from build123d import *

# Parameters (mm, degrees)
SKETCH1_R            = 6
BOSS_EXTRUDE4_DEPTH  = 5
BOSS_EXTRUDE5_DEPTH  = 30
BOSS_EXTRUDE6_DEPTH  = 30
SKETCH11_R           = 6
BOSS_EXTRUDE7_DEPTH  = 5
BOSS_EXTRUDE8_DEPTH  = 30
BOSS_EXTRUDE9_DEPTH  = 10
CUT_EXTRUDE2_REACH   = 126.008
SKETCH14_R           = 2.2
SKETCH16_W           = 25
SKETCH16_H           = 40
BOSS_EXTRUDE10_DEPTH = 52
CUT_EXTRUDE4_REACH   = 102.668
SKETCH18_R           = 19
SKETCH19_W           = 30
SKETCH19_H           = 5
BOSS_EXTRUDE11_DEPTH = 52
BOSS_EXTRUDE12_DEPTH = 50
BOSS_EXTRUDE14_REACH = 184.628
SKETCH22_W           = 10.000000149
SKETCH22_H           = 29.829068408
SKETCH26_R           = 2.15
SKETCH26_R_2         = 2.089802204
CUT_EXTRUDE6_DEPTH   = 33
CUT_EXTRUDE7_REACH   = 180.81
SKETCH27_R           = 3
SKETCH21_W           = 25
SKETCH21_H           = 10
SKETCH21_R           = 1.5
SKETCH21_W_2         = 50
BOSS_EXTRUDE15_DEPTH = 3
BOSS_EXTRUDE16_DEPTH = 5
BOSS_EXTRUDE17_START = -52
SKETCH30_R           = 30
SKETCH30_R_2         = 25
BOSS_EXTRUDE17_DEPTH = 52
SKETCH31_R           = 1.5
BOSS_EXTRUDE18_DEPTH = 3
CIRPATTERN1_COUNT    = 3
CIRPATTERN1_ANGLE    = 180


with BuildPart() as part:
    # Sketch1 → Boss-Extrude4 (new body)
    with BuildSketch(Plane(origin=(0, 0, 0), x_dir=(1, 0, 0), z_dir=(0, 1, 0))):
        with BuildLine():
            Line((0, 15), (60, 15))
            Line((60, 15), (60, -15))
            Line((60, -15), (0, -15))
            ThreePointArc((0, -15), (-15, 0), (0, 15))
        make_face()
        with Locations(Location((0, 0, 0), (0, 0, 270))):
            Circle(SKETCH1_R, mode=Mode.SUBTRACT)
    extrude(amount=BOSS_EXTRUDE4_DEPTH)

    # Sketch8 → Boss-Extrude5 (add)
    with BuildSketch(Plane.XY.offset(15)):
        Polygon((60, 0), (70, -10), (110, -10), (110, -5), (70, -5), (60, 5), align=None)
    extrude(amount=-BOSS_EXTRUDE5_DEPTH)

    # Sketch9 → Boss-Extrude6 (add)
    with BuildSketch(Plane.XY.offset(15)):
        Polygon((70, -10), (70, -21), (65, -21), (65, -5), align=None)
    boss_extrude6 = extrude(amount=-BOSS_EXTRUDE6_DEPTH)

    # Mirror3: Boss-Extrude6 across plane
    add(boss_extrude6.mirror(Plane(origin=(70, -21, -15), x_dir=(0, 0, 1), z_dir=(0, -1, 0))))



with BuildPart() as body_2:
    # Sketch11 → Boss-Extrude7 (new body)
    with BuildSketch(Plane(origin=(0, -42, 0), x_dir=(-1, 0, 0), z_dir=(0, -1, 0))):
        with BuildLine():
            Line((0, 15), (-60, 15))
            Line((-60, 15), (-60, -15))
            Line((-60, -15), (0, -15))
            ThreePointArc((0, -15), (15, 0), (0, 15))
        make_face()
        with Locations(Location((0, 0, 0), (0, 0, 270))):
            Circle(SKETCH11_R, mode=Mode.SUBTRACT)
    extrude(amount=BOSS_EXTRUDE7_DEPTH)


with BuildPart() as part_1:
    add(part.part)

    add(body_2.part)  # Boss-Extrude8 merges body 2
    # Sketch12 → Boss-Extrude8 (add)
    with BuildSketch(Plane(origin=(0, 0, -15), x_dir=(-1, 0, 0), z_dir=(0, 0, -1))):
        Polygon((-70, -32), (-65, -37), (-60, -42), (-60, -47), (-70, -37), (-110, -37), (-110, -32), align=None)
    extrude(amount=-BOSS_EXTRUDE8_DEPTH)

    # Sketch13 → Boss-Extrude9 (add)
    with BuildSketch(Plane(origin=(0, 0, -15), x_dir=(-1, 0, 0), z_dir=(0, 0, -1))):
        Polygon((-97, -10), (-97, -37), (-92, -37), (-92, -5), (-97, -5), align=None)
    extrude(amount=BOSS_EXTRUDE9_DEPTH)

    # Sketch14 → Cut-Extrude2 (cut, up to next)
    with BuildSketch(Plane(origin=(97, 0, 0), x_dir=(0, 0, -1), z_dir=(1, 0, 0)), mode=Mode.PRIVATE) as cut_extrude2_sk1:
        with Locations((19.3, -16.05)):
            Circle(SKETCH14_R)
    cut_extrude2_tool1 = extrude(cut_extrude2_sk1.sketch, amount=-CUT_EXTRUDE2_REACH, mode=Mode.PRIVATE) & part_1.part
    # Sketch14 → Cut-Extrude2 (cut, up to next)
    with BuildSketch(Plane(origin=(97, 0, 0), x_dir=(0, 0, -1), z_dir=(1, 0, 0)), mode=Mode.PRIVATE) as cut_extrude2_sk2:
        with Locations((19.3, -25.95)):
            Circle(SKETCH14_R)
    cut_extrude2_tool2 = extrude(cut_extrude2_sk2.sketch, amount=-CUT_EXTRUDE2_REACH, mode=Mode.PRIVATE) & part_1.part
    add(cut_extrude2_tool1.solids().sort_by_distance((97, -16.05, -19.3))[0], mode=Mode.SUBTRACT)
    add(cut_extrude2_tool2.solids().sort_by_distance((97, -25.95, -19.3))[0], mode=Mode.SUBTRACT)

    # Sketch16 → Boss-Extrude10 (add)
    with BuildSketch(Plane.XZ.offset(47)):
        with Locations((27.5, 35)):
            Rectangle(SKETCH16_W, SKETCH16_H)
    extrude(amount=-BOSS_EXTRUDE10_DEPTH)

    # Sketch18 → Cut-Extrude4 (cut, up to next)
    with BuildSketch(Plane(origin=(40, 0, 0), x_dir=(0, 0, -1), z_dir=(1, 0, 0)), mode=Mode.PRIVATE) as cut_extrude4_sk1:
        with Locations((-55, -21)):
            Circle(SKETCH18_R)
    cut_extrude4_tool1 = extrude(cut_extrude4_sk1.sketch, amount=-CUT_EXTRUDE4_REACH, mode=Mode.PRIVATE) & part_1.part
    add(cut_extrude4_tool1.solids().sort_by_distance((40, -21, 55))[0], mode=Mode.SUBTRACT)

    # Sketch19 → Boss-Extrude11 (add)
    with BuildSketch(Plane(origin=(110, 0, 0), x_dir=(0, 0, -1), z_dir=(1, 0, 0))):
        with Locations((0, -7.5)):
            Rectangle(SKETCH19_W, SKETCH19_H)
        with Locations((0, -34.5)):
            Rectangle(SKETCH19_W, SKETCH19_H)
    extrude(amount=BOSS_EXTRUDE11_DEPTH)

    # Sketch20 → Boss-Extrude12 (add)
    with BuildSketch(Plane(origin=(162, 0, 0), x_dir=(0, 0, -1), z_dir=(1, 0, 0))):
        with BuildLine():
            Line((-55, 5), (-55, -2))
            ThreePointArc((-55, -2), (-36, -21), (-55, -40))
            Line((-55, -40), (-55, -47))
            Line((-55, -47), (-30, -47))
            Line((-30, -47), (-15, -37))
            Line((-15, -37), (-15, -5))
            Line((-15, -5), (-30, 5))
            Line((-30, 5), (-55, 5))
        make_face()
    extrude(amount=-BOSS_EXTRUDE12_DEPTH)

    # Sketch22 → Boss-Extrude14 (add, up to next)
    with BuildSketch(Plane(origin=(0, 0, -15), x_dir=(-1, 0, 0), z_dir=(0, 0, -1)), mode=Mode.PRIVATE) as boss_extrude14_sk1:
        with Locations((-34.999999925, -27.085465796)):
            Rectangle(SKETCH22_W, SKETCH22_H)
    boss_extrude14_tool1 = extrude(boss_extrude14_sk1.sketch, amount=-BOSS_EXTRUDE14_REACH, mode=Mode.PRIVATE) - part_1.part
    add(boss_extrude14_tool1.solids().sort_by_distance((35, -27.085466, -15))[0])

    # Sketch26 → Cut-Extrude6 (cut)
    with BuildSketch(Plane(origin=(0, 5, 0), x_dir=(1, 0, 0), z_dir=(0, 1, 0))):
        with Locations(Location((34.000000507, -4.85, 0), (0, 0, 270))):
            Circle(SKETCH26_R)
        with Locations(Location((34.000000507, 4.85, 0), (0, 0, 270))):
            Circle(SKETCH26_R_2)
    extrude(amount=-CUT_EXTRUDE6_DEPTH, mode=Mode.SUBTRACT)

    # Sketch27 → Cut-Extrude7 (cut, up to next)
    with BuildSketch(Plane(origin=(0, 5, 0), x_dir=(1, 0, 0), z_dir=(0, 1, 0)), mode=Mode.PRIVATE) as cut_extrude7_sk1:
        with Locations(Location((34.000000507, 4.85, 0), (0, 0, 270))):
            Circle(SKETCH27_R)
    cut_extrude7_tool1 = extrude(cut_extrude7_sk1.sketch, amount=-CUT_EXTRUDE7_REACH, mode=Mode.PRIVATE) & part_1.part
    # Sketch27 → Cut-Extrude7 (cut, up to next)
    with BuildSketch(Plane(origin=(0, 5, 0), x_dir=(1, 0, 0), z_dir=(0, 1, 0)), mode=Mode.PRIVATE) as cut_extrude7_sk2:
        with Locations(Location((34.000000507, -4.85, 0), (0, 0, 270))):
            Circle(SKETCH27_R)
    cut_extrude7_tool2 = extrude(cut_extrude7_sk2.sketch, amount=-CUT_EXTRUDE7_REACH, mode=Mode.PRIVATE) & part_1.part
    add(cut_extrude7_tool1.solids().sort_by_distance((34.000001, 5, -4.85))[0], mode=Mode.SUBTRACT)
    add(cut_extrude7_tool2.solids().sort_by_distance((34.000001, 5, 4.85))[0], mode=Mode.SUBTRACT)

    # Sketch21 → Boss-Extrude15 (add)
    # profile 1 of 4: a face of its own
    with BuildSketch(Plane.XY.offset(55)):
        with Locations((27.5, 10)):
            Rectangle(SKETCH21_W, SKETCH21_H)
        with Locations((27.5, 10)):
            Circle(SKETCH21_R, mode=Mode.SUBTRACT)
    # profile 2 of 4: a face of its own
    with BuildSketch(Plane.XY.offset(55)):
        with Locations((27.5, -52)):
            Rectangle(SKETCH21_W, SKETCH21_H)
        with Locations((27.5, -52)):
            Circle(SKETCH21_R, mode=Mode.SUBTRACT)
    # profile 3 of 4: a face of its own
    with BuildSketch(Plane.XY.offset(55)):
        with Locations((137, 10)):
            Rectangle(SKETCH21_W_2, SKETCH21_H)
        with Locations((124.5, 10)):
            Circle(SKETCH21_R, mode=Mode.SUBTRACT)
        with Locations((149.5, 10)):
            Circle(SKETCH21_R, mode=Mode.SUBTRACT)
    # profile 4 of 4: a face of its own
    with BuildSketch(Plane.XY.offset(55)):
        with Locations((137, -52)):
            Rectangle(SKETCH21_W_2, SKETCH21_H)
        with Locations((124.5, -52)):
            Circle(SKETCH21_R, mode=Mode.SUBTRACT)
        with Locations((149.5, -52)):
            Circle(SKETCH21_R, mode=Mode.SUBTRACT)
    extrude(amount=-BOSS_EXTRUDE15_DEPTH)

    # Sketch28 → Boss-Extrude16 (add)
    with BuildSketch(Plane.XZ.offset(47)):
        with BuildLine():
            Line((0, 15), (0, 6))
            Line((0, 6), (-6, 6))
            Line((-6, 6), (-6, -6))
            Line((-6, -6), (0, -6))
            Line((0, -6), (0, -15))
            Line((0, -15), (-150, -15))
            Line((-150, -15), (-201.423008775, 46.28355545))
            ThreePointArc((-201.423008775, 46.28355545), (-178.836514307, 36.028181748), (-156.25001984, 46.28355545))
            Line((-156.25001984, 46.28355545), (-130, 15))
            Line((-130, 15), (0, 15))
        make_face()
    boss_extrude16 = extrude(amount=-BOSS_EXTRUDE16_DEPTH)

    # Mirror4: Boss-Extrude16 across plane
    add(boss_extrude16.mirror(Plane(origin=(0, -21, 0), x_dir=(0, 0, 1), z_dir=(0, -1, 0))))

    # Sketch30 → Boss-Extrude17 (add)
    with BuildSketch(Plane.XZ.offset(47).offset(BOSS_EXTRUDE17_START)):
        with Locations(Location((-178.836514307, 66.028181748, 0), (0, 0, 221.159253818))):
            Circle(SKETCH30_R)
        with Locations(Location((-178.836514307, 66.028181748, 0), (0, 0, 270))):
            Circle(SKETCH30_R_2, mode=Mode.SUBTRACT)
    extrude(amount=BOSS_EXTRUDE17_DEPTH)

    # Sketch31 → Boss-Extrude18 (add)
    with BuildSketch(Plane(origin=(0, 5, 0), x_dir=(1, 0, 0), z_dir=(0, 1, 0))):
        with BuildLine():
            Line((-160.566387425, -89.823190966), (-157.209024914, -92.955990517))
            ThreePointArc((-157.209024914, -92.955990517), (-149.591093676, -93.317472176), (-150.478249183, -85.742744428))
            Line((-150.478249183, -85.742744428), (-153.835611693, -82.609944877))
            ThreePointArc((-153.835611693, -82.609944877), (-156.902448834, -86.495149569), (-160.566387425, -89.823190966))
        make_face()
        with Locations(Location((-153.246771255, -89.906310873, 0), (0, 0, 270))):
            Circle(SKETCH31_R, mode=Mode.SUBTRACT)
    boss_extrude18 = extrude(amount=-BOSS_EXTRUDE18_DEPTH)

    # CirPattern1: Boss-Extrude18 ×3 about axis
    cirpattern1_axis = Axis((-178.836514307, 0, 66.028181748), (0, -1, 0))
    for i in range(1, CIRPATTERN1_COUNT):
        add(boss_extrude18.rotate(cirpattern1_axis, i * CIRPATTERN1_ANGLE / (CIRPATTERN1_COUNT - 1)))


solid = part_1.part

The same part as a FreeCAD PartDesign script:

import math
import FreeCAD as App
import Part
import Sketcher
Q = App.Units.Quantity

doc = App.newDocument("Part")
params = doc.addObject("Spreadsheet::Sheet", "Params")
for row, (alias, value) in enumerate([
    ("sketch1_diameter", "12 mm"),
    ("sketch1_radius", "15 mm"),
    ("sketch1_width", "60 mm"),
    ("pad1_length", "5 mm"),
    ("sketch2_width", "40 mm"),
    ("sketch2_height", "5 mm"),
    ("pad2_length", "30 mm"),
    ("sketch3_width", "5 mm"),
    ("sketch3_height", "11 mm"),
    ("sketch3_height2", "16 mm"),
    ("pad3_length", "30 mm"),
    ("sketch4_diameter", "12 mm"),
    ("sketch4_radius", "15 mm"),
    ("sketch4_width", "60 mm"),
    ("pad4_length", "5 mm"),
    ("sketch5_width", "40 mm"),
    ("sketch5_height", "5 mm"),
    ("pad5_length", "30 mm"),
    ("sketch6_width", "5 mm"),
    ("sketch6_height", "32 mm"),
    ("pad6_length", "10 mm"),
    ("sketch7_diameter", "4.4 mm"),
    ("sketch8_diameter", "4.4 mm"),
    ("sketch9_width", "25 mm"),
    ("sketch9_height", "40 mm"),
    ("pad7_length", "52 mm"),
    ("sketch10_diameter", "38 mm"),
    ("sketch11_width", "5 mm"),
    ("sketch11_height", "30 mm"),
    ("pad8_length", "52 mm"),
    ("sketch12_radius", "19 mm"),
    ("sketch12_width", "7 mm"),
    ("sketch12_width2", "32 mm"),
    ("sketch12_height", "25 mm"),
    ("pad9_length", "50 mm"),
    ("sketch13_width", "10 mm"),
    ("sketch14_diameter", "4.3 mm"),
    ("pocket4_length", "33 mm"),
    ("sketch15_diameter", "6 mm"),
    ("pocket5_length", "5 mm"),
    ("sketch16_diameter", "6 mm"),
    ("pocket6_length", "5 mm"),
    ("sketch17_diameter", "3 mm"),
    ("sketch17_width", "25 mm"),
    ("sketch17_width2", "50 mm"),
    ("sketch17_height", "10 mm"),
    ("pad11_length", "3 mm"),
    ("sketch18_radius", "30 mm"),
    ("sketch18_width", "130 mm"),
    ("sketch18_width2", "150 mm"),
    ("sketch18_width3", "6 mm"),
    ("sketch18_height", "9 mm"),
    ("pad12_length", "5 mm"),
    ("sketch19_diameter", "60 mm"),
    ("sketch19_diameter2", "50 mm"),
    ("pad13_length", "52 mm"),
    ("sketch20_diameter", "3 mm"),
    ("sketch20_radius", "5 mm"),
    ("sketch20_radius2", "30 mm"),
    ("pad14_length", "3 mm"),
], start=1):
    params.set(f"A{row}", alias)
    params.set(f"B{row}", "=" + value)
    params.setAlias(f"B{row}", alias)

body = doc.addObject("PartDesign::Body", "Body")

# Sketch on XZ plane
sketch1 = doc.addObject("Sketcher::SketchObject", "Sketch")
body.addObject(sketch1)
sketch1.AttachmentSupport = (doc.XZ_Plane, [""])
sketch1.MapMode = "FlatFace"
sketch1.addGeometry([
    Part.LineSegment(App.Vector(60, -15, 0), App.Vector(0, -15, 0)),  # 0
    Part.ArcOfCircle(Part.Circle(App.Vector(0, 0, 0), App.Vector(0, 0, 1), 15), math.radians(90), math.radians(270)),  # 1
    Part.LineSegment(App.Vector(0, 15, 0), App.Vector(60, 15, 0)),  # 2
    Part.LineSegment(App.Vector(60, 15, 0), App.Vector(60, -15, 0)),  # 3
    Part.Circle(App.Vector(0, 0, 0), App.Vector(0, 0, 1), 6),  # 4
], False)
sketch1.addConstraint([
    Sketcher.Constraint("Tangent", 0, 2, 1, 2),
    Sketcher.Constraint("Tangent", 1, 1, 2, 1),
    Sketcher.Constraint("Coincident", 2, 2, 3, 1),
    Sketcher.Constraint("Coincident", 3, 2, 0, 1),
    Sketcher.Constraint("Horizontal", 0),
    Sketcher.Constraint("Horizontal", 2),
    Sketcher.Constraint("Vertical", 3),
    Sketcher.Constraint("Coincident", 1, 3, -1, 1),
    Sketcher.Constraint("Coincident", 4, 3, -1, 1),
    Sketcher.Constraint("Diameter", 4, Q("12 mm")),
    Sketcher.Constraint("Radius", 1, Q("15 mm")),
    Sketcher.Constraint("DistanceX", 0, 2, 0, 1, Q("60 mm")),
])
sketch1.setExpression("Constraints[9]", "Params.sketch1_diameter")
sketch1.setExpression("Constraints[10]", "Params.sketch1_radius")
sketch1.setExpression("Constraints[11]", "Params.sketch1_width")
pad1 = doc.addObject("PartDesign::Pad", "Pad")
body.addObject(pad1)
pad1.Profile = sketch1
pad1.setExpression("Length", "Params.pad1_length")
pad1.Reversed = True

# Sketch on XY plane
sketch2 = doc.addObject("Sketcher::SketchObject", "Sketch001")
body.addObject(sketch2)
sketch2.AttachmentSupport = (doc.XY_Plane, [""])
sketch2.MapMode = "FlatFace"
sketch2.AttachmentOffset = App.Placement(App.Vector(0, 0, 15), App.Rotation())
sketch2.addGeometry([
    Part.LineSegment(App.Vector(60, 0, 0), App.Vector(70, -10, 0)),  # 0
    Part.LineSegment(App.Vector(70, -10, 0), App.Vector(110, -10, 0)),  # 1
    Part.LineSegment(App.Vector(110, -10, 0), App.Vector(110, -5, 0)),  # 2
    Part.LineSegment(App.Vector(110, -5, 0), App.Vector(70, -5, 0)),  # 3
    Part.LineSegment(App.Vector(70, -5, 0), App.Vector(60, 5, 0)),  # 4
    Part.LineSegment(App.Vector(60, 5, 0), App.Vector(60, 0, 0)),  # 5
], False)
sketch2.addConstraint([
    Sketcher.Constraint("Coincident", 0, 2, 1, 1),
    Sketcher.Constraint("Coincident", 1, 2, 2, 1),
    Sketcher.Constraint("Coincident", 2, 2, 3, 1),
    Sketcher.Constraint("Coincident", 3, 2, 4, 1),
    Sketcher.Constraint("Coincident", 4, 2, 5, 1),
    Sketcher.Constraint("Coincident", 5, 2, 0, 1),
    Sketcher.Constraint("Horizontal", 1),
    Sketcher.Constraint("Vertical", 2),
    Sketcher.Constraint("Horizontal", 3),
    Sketcher.Constraint("Vertical", 5),
    Sketcher.Constraint("PointOnObject", 5, 2, -1),
    Sketcher.Constraint("Parallel", 0, 4),
    Sketcher.Constraint("Vertical", 0, 2, 3, 2),
    Sketcher.Constraint("DistanceX", 1, 1, 1, 2, Q("40 mm")),
    Sketcher.Constraint("DistanceY", 2, 1, 2, 2, Q("5 mm")),
    Sketcher.Constraint("Angle", 0, Q("-45 deg")),
    Sketcher.Constraint("DistanceX", -1, 1, 0, 2, Q("70 mm")),
    Sketcher.Constraint("DistanceY", 0, 2, -1, 1, Q("10 mm")),
])
sketch2.setExpression("Constraints[13]", "Params.sketch2_width")
sketch2.setExpression("Constraints[14]", "Params.sketch2_height")
pad2 = doc.addObject("PartDesign::Pad", "Pad001")
body.addObject(pad2)
pad2.Profile = sketch2
pad2.setExpression("Length", "Params.pad2_length")
pad2.Reversed = True

# Sketch on XY plane
sketch3 = doc.addObject("Sketcher::SketchObject", "Sketch002")
body.addObject(sketch3)
sketch3.AttachmentSupport = (doc.XY_Plane, [""])
sketch3.MapMode = "FlatFace"
sketch3.AttachmentOffset = App.Placement(App.Vector(0, 0, 15), App.Rotation())
sketch3.addGeometry([
    Part.LineSegment(App.Vector(70, -21, 0), App.Vector(70, -10, 0)),
    Part.LineSegment(App.Vector(70, -10, 0), App.Vector(65, -5, 0)),
    Part.LineSegment(App.Vector(65, -5, 0), App.Vector(65, -21, 0)),
    Part.LineSegment(App.Vector(65, -21, 0), App.Vector(70, -21, 0)),
], False)
sketch3.addConstraint([
    Sketcher.Constraint("Coincident", 0, 2, 1, 1),
    Sketcher.Constraint("Coincident", 1, 2, 2, 1),
    Sketcher.Constraint("Coincident", 2, 2, 3, 1),
    Sketcher.Constraint("Coincident", 3, 2, 0, 1),
    Sketcher.Constraint("Vertical", 0),
    Sketcher.Constraint("Vertical", 2),
    Sketcher.Constraint("Horizontal", 3),
    Sketcher.Constraint("DistanceX", 3, 1, 3, 2, Q("5 mm")),
    Sketcher.Constraint("DistanceY", 0, 1, 0, 2, Q("11 mm")),
    Sketcher.Constraint("DistanceY", 2, 2, 2, 1, Q("16 mm")),
    Sketcher.Constraint("DistanceX", -1, 1, 0, 2, Q("70 mm")),
    Sketcher.Constraint("DistanceY", 0, 2, -1, 1, Q("10 mm")),
])
sketch3.setExpression("Constraints[7]", "Params.sketch3_width")
sketch3.setExpression("Constraints[8]", "Params.sketch3_height")
sketch3.setExpression("Constraints[9]", "Params.sketch3_height2")
pad3 = doc.addObject("PartDesign::Pad", "Pad002")
body.addObject(pad3)
pad3.Profile = sketch3
pad3.setExpression("Length", "Params.pad3_length")
pad3.Reversed = True
doc.recompute()

datumplane = doc.addObject("PartDesign::Plane", "DatumPlane")
body.addObject(datumplane)
datumplane.AttachmentSupport = (doc.XZ_Plane, [""])
datumplane.MapMode = "FlatFace"
datumplane.AttachmentOffset = App.Placement(App.Vector(0, 0, 21), App.Rotation())
mirrored = doc.addObject("PartDesign::Mirrored", "Mirrored")
body.addObject(mirrored)
mirrored.Originals = [pad3]
mirrored.MirrorPlane = (datumplane, [""])
body.Tip = mirrored
body2 = doc.addObject("PartDesign::Body", "Body001")

# Sketch on XZ plane
sketch4 = doc.addObject("Sketcher::SketchObject", "Sketch003")
body2.addObject(sketch4)
sketch4.AttachmentSupport = (doc.getObject("XZ_Plane001"), [""])
sketch4.MapMode = "FlatFace"
sketch4.AttachmentOffset = App.Placement(App.Vector(0, 0, 42), App.Rotation())
sketch4.addGeometry([
    Part.LineSegment(App.Vector(0, -15, 0), App.Vector(60, -15, 0)),  # 0
    Part.LineSegment(App.Vector(60, -15, 0), App.Vector(60, 15, 0)),  # 1
    Part.LineSegment(App.Vector(60, 15, 0), App.Vector(0, 15, 0)),  # 2
    Part.ArcOfCircle(Part.Circle(App.Vector(0, 0, 0), App.Vector(0, 0, 1), 15), math.radians(90), math.radians(270)),  # 3
    Part.Circle(App.Vector(0, 0, 0), App.Vector(0, 0, 1), 6),  # 4
], False)
sketch4.addConstraint([
    Sketcher.Constraint("Coincident", 0, 2, 1, 1),
    Sketcher.Constraint("Coincident", 1, 2, 2, 1),
    Sketcher.Constraint("Tangent", 2, 2, 3, 1),
    Sketcher.Constraint("Tangent", 3, 2, 0, 1),
    Sketcher.Constraint("Horizontal", 0),
    Sketcher.Constraint("Vertical", 1),
    Sketcher.Constraint("Horizontal", 2),
    Sketcher.Constraint("Coincident", 3, 3, -1, 1),
    Sketcher.Constraint("Coincident", 4, 3, -1, 1),
    Sketcher.Constraint("Diameter", 4, Q("12 mm")),
    Sketcher.Constraint("Radius", 3, Q("15 mm")),
    Sketcher.Constraint("DistanceX", 0, 1, 0, 2, Q("60 mm")),
])
sketch4.setExpression("Constraints[9]", "Params.sketch4_diameter")
sketch4.setExpression("Constraints[10]", "Params.sketch4_radius")
sketch4.setExpression("Constraints[11]", "Params.sketch4_width")
pad4 = doc.addObject("PartDesign::Pad", "Pad003")
body2.addObject(pad4)
pad4.Profile = sketch4
pad4.setExpression("Length", "Params.pad4_length")
body.AllowCompound = True
doc.recompute()

boolean = doc.addObject("PartDesign::Boolean", "Boolean")
body.addObject(boolean)
boolean.Type = "Fuse"
boolean.addObjects([body2])

# Sketch on XY plane
sketch5 = doc.addObject("Sketcher::SketchObject", "Sketch004")
body.addObject(sketch5)
sketch5.AttachmentSupport = (doc.XY_Plane, [""])
sketch5.MapMode = "FlatFace"
sketch5.AttachmentOffset = App.Placement(App.Vector(0, 0, -15), App.Rotation())
sketch5.addGeometry([
    Part.LineSegment(App.Vector(60, -42, 0), App.Vector(70, -32, 0)),  # 0
    Part.LineSegment(App.Vector(70, -32, 0), App.Vector(110, -32, 0)),  # 1
    Part.LineSegment(App.Vector(110, -32, 0), App.Vector(110, -37, 0)),  # 2
    Part.LineSegment(App.Vector(110, -37, 0), App.Vector(70, -37, 0)),  # 3
    Part.LineSegment(App.Vector(70, -37, 0), App.Vector(60, -47, 0)),  # 4
    Part.LineSegment(App.Vector(60, -47, 0), App.Vector(60, -42, 0)),  # 5
], False)
sketch5.addConstraint([
    Sketcher.Constraint("Coincident", 0, 2, 1, 1),
    Sketcher.Constraint("Coincident", 1, 2, 2, 1),
    Sketcher.Constraint("Coincident", 2, 2, 3, 1),
    Sketcher.Constraint("Coincident", 3, 2, 4, 1),
    Sketcher.Constraint("Coincident", 4, 2, 5, 1),
    Sketcher.Constraint("Coincident", 5, 2, 0, 1),
    Sketcher.Constraint("Horizontal", 1),
    Sketcher.Constraint("Vertical", 2),
    Sketcher.Constraint("Horizontal", 3),
    Sketcher.Constraint("Vertical", 5),
    Sketcher.Constraint("Parallel", 0, 4),
    Sketcher.Constraint("Vertical", 0, 2, 3, 2),
    Sketcher.Constraint("DistanceX", 1, 1, 1, 2, Q("40 mm")),
    Sketcher.Constraint("DistanceY", 2, 2, 2, 1, Q("5 mm")),
    Sketcher.Constraint("Angle", 0, Q("45 deg")),
    Sketcher.Constraint("DistanceX", -1, 1, 0, 2, Q("70 mm")),
    Sketcher.Constraint("DistanceY", 0, 2, -1, 1, Q("32 mm")),
    Sketcher.Constraint("DistanceX", -1, 1, 4, 2, Q("60 mm")),
])
sketch5.setExpression("Constraints[12]", "Params.sketch5_width")
sketch5.setExpression("Constraints[13]", "Params.sketch5_height")
pad5 = doc.addObject("PartDesign::Pad", "Pad004")
body.addObject(pad5)
pad5.Profile = sketch5
pad5.setExpression("Length", "Params.pad5_length")

# Sketch on XY plane
sketch6 = doc.addObject("Sketcher::SketchObject", "Sketch005")
body.addObject(sketch6)
sketch6.AttachmentSupport = (doc.XY_Plane, [""])
sketch6.MapMode = "FlatFace"
sketch6.AttachmentOffset = App.Placement(App.Vector(0, 0, -15), App.Rotation())
sketch6.addGeometry([
    Part.LineSegment(App.Vector(97, -37, 0), App.Vector(92, -37, 0)),
    Part.LineSegment(App.Vector(92, -37, 0), App.Vector(92, -5, 0)),
    Part.LineSegment(App.Vector(92, -5, 0), App.Vector(97, -5, 0)),
    Part.LineSegment(App.Vector(97, -5, 0), App.Vector(97, -37, 0)),
], False)
sketch6.addConstraint([
    Sketcher.Constraint("Coincident", 0, 2, 1, 1),
    Sketcher.Constraint("Coincident", 1, 2, 2, 1),
    Sketcher.Constraint("Coincident", 2, 2, 3, 1),
    Sketcher.Constraint("Coincident", 3, 2, 0, 1),
    Sketcher.Constraint("Horizontal", 0),
    Sketcher.Constraint("Vertical", 1),
    Sketcher.Constraint("Horizontal", 2),
    Sketcher.Constraint("Vertical", 3),
    Sketcher.Constraint("DistanceX", 0, 2, 0, 1, Q("5 mm")),
    Sketcher.Constraint("DistanceY", 1, 1, 1, 2, Q("32 mm")),
    Sketcher.Constraint("DistanceX", -1, 1, 0, 2, Q("92 mm")),
    Sketcher.Constraint("DistanceY", 0, 2, -1, 1, Q("37 mm")),
])
sketch6.setExpression("Constraints[8]", "Params.sketch6_width")
sketch6.setExpression("Constraints[9]", "Params.sketch6_height")
pad6 = doc.addObject("PartDesign::Pad", "Pad005")
body.addObject(pad6)
pad6.Profile = sketch6
pad6.setExpression("Length", "Params.pad6_length")
pad6.Reversed = True

# Sketch on YZ plane
sketch7 = doc.addObject("Sketcher::SketchObject", "Sketch006")
body.addObject(sketch7)
sketch7.AttachmentSupport = (doc.YZ_Plane, [""])
sketch7.MapMode = "FlatFace"
sketch7.AttachmentOffset = App.Placement(App.Vector(0, 0, 97), App.Rotation())
sketch7.addGeometry(Part.Circle(App.Vector(-16.1, -19.3, 0), App.Vector(0, 0, 1), 2.2), False)
sketch7.addConstraint([
    Sketcher.Constraint("Diameter", 0, Q("4.4 mm")),
    Sketcher.Constraint("DistanceY", 0, 3, -1, 1, Q("19.3 mm")),
    Sketcher.Constraint("DistanceX", 0, 3, -1, 1, Q("16.05 mm")),
])
sketch7.setExpression("Constraints[0]", "Params.sketch7_diameter")
pocket1 = doc.addObject("PartDesign::Pocket", "Pocket")
body.addObject(pocket1)
pocket1.Profile = sketch7
pocket1.Type = "UpToFirst"

# Sketch on YZ plane
sketch8 = doc.addObject("Sketcher::SketchObject", "Sketch007")
body.addObject(sketch8)
sketch8.AttachmentSupport = (doc.YZ_Plane, [""])
sketch8.MapMode = "FlatFace"
sketch8.AttachmentOffset = App.Placement(App.Vector(0, 0, 97), App.Rotation())
sketch8.addGeometry(Part.Circle(App.Vector(-25.9, -19.3, 0), App.Vector(0, 0, 1), 2.2), False)
sketch8.addConstraint([
    Sketcher.Constraint("Diameter", 0, Q("4.4 mm")),
    Sketcher.Constraint("DistanceY", 0, 3, -1, 1, Q("19.3 mm")),
    Sketcher.Constraint("DistanceX", 0, 3, -1, 1, Q("25.95 mm")),
])
sketch8.setExpression("Constraints[0]", "Params.sketch8_diameter")
pocket2 = doc.addObject("PartDesign::Pocket", "Pocket001")
body.addObject(pocket2)
pocket2.Profile = sketch8
pocket2.Type = "UpToFirst"

# Sketch on XZ plane
sketch9 = doc.addObject("Sketcher::SketchObject", "Sketch008")
body.addObject(sketch9)
sketch9.AttachmentSupport = (doc.XZ_Plane, [""])
sketch9.MapMode = "FlatFace"
sketch9.AttachmentOffset = App.Placement(App.Vector(0, 0, 47), App.Rotation())
sketch9.addGeometry([
    Part.LineSegment(App.Vector(15, 55, 0), App.Vector(15, 15, 0)),
    Part.LineSegment(App.Vector(15, 15, 0), App.Vector(40, 15, 0)),
    Part.LineSegment(App.Vector(40, 15, 0), App.Vector(40, 55, 0)),
    Part.LineSegment(App.Vector(40, 55, 0), App.Vector(15, 55, 0)),
], False)
sketch9.addConstraint([
    Sketcher.Constraint("Coincident", 0, 2, 1, 1),
    Sketcher.Constraint("Coincident", 1, 2, 2, 1),
    Sketcher.Constraint("Coincident", 2, 2, 3, 1),
    Sketcher.Constraint("Coincident", 3, 2, 0, 1),
    Sketcher.Constraint("Vertical", 0),
    Sketcher.Constraint("Horizontal", 1),
    Sketcher.Constraint("Vertical", 2),
    Sketcher.Constraint("Horizontal", 3),
    Sketcher.Constraint("DistanceX", 1, 1, 1, 2, Q("25 mm")),
    Sketcher.Constraint("DistanceY", 0, 2, 0, 1, Q("40 mm")),
    Sketcher.Constraint("DistanceX", -1, 1, 0, 2, Q("15 mm")),
    Sketcher.Constraint("DistanceY", -1, 1, 0, 2, Q("15 mm")),
])
sketch9.setExpression("Constraints[8]", "Params.sketch9_width")
sketch9.setExpression("Constraints[9]", "Params.sketch9_height")
pad7 = doc.addObject("PartDesign::Pad", "Pad006")
body.addObject(pad7)
pad7.Profile = sketch9
pad7.setExpression("Length", "Params.pad7_length")
pad7.Reversed = True

# Sketch on YZ plane
sketch10 = doc.addObject("Sketcher::SketchObject", "Sketch009")
body.addObject(sketch10)
sketch10.AttachmentSupport = (doc.YZ_Plane, [""])
sketch10.MapMode = "FlatFace"
sketch10.AttachmentOffset = App.Placement(App.Vector(0, 0, 40), App.Rotation())
sketch10.addGeometry(Part.Circle(App.Vector(-21, 55, 0), App.Vector(0, 0, 1), 19), False)
sketch10.addConstraint([
    Sketcher.Constraint("Diameter", 0, Q("38 mm")),
    Sketcher.Constraint("DistanceX", 0, 3, -1, 1, Q("21 mm")),
    Sketcher.Constraint("DistanceY", -1, 1, 0, 3, Q("55 mm")),
])
sketch10.setExpression("Constraints[0]", "Params.sketch10_diameter")
pocket3 = doc.addObject("PartDesign::Pocket", "Pocket002")
body.addObject(pocket3)
pocket3.Profile = sketch10
pocket3.Type = "UpToFirst"

# Sketch on YZ plane
sketch11 = doc.addObject("Sketcher::SketchObject", "Sketch010")
body.addObject(sketch11)
sketch11.AttachmentSupport = (doc.YZ_Plane, [""])
sketch11.MapMode = "FlatFace"
sketch11.AttachmentOffset = App.Placement(App.Vector(0, 0, 110), App.Rotation())
sketch11.addGeometry([
    Part.LineSegment(App.Vector(-5, 15, 0), App.Vector(-10, 15, 0)),  # 0
    Part.LineSegment(App.Vector(-10, 15, 0), App.Vector(-10, -15, 0)),  # 1
    Part.LineSegment(App.Vector(-10, -15, 0), App.Vector(-5, -15, 0)),  # 2
    Part.LineSegment(App.Vector(-5, -15, 0), App.Vector(-5, 15, 0)),  # 3
    Part.LineSegment(App.Vector(-32, 15, 0), App.Vector(-37, 15, 0)),  # 4
    Part.LineSegment(App.Vector(-37, 15, 0), App.Vector(-37, -15, 0)),  # 5
    Part.LineSegment(App.Vector(-37, -15, 0), App.Vector(-32, -15, 0)),  # 6
    Part.LineSegment(App.Vector(-32, -15, 0), App.Vector(-32, 15, 0)),  # 7
], False)
sketch11.addConstraint([
    Sketcher.Constraint("Coincident", 0, 2, 1, 1),
    Sketcher.Constraint("Coincident", 1, 2, 2, 1),
    Sketcher.Constraint("Coincident", 2, 2, 3, 1),
    Sketcher.Constraint("Coincident", 3, 2, 0, 1),
    Sketcher.Constraint("Coincident", 4, 2, 5, 1),
    Sketcher.Constraint("Coincident", 5, 2, 6, 1),
    Sketcher.Constraint("Coincident", 6, 2, 7, 1),
    Sketcher.Constraint("Coincident", 7, 2, 4, 1),
    Sketcher.Constraint("Horizontal", 0),
    Sketcher.Constraint("Vertical", 1),
    Sketcher.Constraint("Horizontal", 2),
    Sketcher.Constraint("Vertical", 3),
    Sketcher.Constraint("Horizontal", 4),
    Sketcher.Constraint("Vertical", 5),
    Sketcher.Constraint("Horizontal", 6),
    Sketcher.Constraint("Vertical", 7),
    Sketcher.Constraint("Horizontal", 3, 2, 4, 2),
    Sketcher.Constraint("Horizontal", 2, 2, 5, 2),
    Sketcher.Constraint("Equal", 2, 4),
    Sketcher.Constraint("DistanceX", 0, 2, 0, 1, Q("5 mm")),
    Sketcher.Constraint("DistanceY", 1, 2, 1, 1, Q("30 mm")),
    Sketcher.Constraint("DistanceX", 0, 2, -1, 1, Q("10 mm")),
    Sketcher.Constraint("DistanceY", -1, 1, 0, 2, Q("15 mm")),
    Sketcher.Constraint("DistanceX", 4, 2, -1, 1, Q("37 mm")),
])
sketch11.setExpression("Constraints[19]", "Params.sketch11_width")
sketch11.setExpression("Constraints[20]", "Params.sketch11_height")
pad8 = doc.addObject("PartDesign::Pad", "Pad007")
body.addObject(pad8)
pad8.Profile = sketch11
pad8.setExpression("Length", "Params.pad8_length")

# Sketch on YZ plane
sketch12 = doc.addObject("Sketcher::SketchObject", "Sketch011")
body.addObject(sketch12)
sketch12.AttachmentSupport = (doc.YZ_Plane, [""])
sketch12.MapMode = "FlatFace"
sketch12.AttachmentOffset = App.Placement(App.Vector(0, 0, 162), App.Rotation())
sketch12.addGeometry([
    Part.LineSegment(App.Vector(5, 55, 0), App.Vector(-2, 55, 0)),  # 0
    Part.ArcOfCircle(Part.Circle(App.Vector(-21, 55, 0), App.Vector(0, 0, 1), 19), math.radians(180), math.radians(360)),  # 1
    Part.LineSegment(App.Vector(-40, 55, 0), App.Vector(-47, 55, 0)),  # 2
    Part.LineSegment(App.Vector(-47, 55, 0), App.Vector(-47, 30, 0)),  # 3
    Part.LineSegment(App.Vector(-47, 30, 0), App.Vector(-37, 15, 0)),  # 4
    Part.LineSegment(App.Vector(-37, 15, 0), App.Vector(-5, 15, 0)),  # 5
    Part.LineSegment(App.Vector(-5, 15, 0), App.Vector(5, 30, 0)),  # 6
    Part.LineSegment(App.Vector(5, 30, 0), App.Vector(5, 55, 0)),  # 7
], False)
sketch12.addConstraint([
    Sketcher.Constraint("Coincident", 0, 2, 1, 2),
    Sketcher.Constraint("Coincident", 1, 1, 2, 1),
    Sketcher.Constraint("Coincident", 2, 2, 3, 1),
    Sketcher.Constraint("Coincident", 3, 2, 4, 1),
    Sketcher.Constraint("Coincident", 4, 2, 5, 1),
    Sketcher.Constraint("Coincident", 5, 2, 6, 1),
    Sketcher.Constraint("Coincident", 6, 2, 7, 1),
    Sketcher.Constraint("Coincident", 7, 2, 0, 1),
    Sketcher.Constraint("Horizontal", 0),
    Sketcher.Constraint("Horizontal", 2),
    Sketcher.Constraint("Vertical", 3),
    Sketcher.Constraint("Horizontal", 5),
    Sketcher.Constraint("Vertical", 7),
    Sketcher.Constraint("Horizontal", 1, 3, 0, 2),
    Sketcher.Constraint("Horizontal", 0, 2, 1, 1),
    Sketcher.Constraint("Horizontal", 3, 2, 6, 2),
    Sketcher.Constraint("Equal", 0, 2),
    Sketcher.Constraint("Equal", 4, 6),
    Sketcher.Constraint("Radius", 1, Q("19 mm")),
    Sketcher.Constraint("DistanceX", 0, 2, 0, 1, Q("7 mm")),
    Sketcher.Constraint("DistanceX", 5, 1, 5, 2, Q("32 mm")),
    Sketcher.Constraint("DistanceY", 3, 2, 3, 1, Q("25 mm")),
    Sketcher.Constraint("DistanceX", 1, 3, -1, 1, Q("21 mm")),
    Sketcher.Constraint("DistanceY", -1, 1, 1, 3, Q("55 mm")),
    Sketcher.Constraint("DistanceY", -1, 1, 4, 2, Q("15 mm")),
])
sketch12.setExpression("Constraints[18]", "Params.sketch12_radius")
sketch12.setExpression("Constraints[19]", "Params.sketch12_width")
sketch12.setExpression("Constraints[20]", "Params.sketch12_width2")
sketch12.setExpression("Constraints[21]", "Params.sketch12_height")
pad9 = doc.addObject("PartDesign::Pad", "Pad008")
body.addObject(pad9)
pad9.Profile = sketch12
pad9.setExpression("Length", "Params.pad9_length")
pad9.Reversed = True

# Sketch on XY plane
sketch13 = doc.addObject("Sketcher::SketchObject", "Sketch012")
body.addObject(sketch13)
sketch13.AttachmentSupport = (doc.XY_Plane, [""])
sketch13.MapMode = "FlatFace"
sketch13.AttachmentOffset = App.Placement(App.Vector(0, 0, -15), App.Rotation())
sketch13.addGeometry([
    Part.LineSegment(App.Vector(40, -12, 0), App.Vector(40, -42, 0)),
    Part.LineSegment(App.Vector(40, -42, 0), App.Vector(30, -42, 0)),
    Part.LineSegment(App.Vector(30, -42, 0), App.Vector(30, -12, 0)),
    Part.LineSegment(App.Vector(30, -12, 0), App.Vector(40, -12, 0)),
], False)
sketch13.addConstraint([
    Sketcher.Constraint("Coincident", 0, 2, 1, 1),
    Sketcher.Constraint("Coincident", 1, 2, 2, 1),
    Sketcher.Constraint("Coincident", 2, 2, 3, 1),
    Sketcher.Constraint("Coincident", 3, 2, 0, 1),
    Sketcher.Constraint("Vertical", 0),
    Sketcher.Constraint("Horizontal", 1),
    Sketcher.Constraint("Vertical", 2),
    Sketcher.Constraint("Horizontal", 3),
    Sketcher.Constraint("DistanceX", 1, 2, 1, 1, Q("10 mm")),
    Sketcher.Constraint("DistanceX", -1, 1, 0, 2, Q("40 mm")),
    Sketcher.Constraint("DistanceY", 0, 2, -1, 1, Q("42 mm")),
    Sketcher.Constraint("DistanceY", 0, 2, 0, 1, Q("29.829068 mm")),
])
sketch13.setExpression("Constraints[8]", "Params.sketch13_width")
pad10 = doc.addObject("PartDesign::Pad", "Pad009")
body.addObject(pad10)
pad10.Profile = sketch13
pad10.Type = "UpToFirst"

# Sketch on XZ plane
sketch14 = doc.addObject("Sketcher::SketchObject", "Sketch013")
body.addObject(sketch14)
sketch14.AttachmentSupport = (doc.XZ_Plane, [""])
sketch14.MapMode = "FlatFace"
sketch14.AttachmentOffset = App.Placement(App.Vector(0, 0, -5), App.Rotation())
sketch14.addGeometry([
    Part.Circle(App.Vector(34, 4.8, 0), App.Vector(0, 0, 1), 2.1),
    Part.Circle(App.Vector(34, -4.8, 0), App.Vector(0, 0, 1), 2.1),
], False)
sketch14.addConstraint([
    Sketcher.Constraint("Symmetric", 0, 3, 1, 3, -1),
    Sketcher.Constraint("Diameter", 0, Q("4.3 mm")),
    Sketcher.Constraint("DistanceX", -1, 1, 0, 3, Q("34.000001 mm")),
    Sketcher.Constraint("DistanceY", 1, 3, 0, 3, Q("9.7 mm")),
    Sketcher.Constraint("Diameter", 1, Q("4.179604 mm")),
])
sketch14.setExpression("Constraints[1]", "Params.sketch14_diameter")
pocket4 = doc.addObject("PartDesign::Pocket", "Pocket003")
body.addObject(pocket4)
pocket4.Profile = sketch14
pocket4.setExpression("Length", "Params.pocket4_length")
pocket4.Reversed = True

# Sketch on XZ plane
sketch15 = doc.addObject("Sketcher::SketchObject", "Sketch014")
body.addObject(sketch15)
sketch15.AttachmentSupport = (doc.XZ_Plane, [""])
sketch15.MapMode = "FlatFace"
sketch15.AttachmentOffset = App.Placement(App.Vector(0, 0, -5), App.Rotation())
sketch15.addGeometry(Part.Circle(App.Vector(34, -4.8, 0), App.Vector(0, 0, 1), 3), False)
sketch15.addConstraint([
    Sketcher.Constraint("Diameter", 0, Q("6 mm")),
    Sketcher.Constraint("DistanceX", -1, 1, 0, 3, Q("34.000001 mm")),
    Sketcher.Constraint("DistanceY", 0, 3, -1, 1, Q("4.85 mm")),
])
sketch15.setExpression("Constraints[0]", "Params.sketch15_diameter")
pocket5 = doc.addObject("PartDesign::Pocket", "Pocket004")
body.addObject(pocket5)
pocket5.Profile = sketch15
pocket5.setExpression("Length", "Params.pocket5_length")
pocket5.Reversed = True

# Sketch on XZ plane
sketch16 = doc.addObject("Sketcher::SketchObject", "Sketch015")
body.addObject(sketch16)
sketch16.AttachmentSupport = (doc.XZ_Plane, [""])
sketch16.MapMode = "FlatFace"
sketch16.AttachmentOffset = App.Placement(App.Vector(0, 0, -5), App.Rotation())
sketch16.addGeometry(Part.Circle(App.Vector(34, 4.8, 0), App.Vector(0, 0, 1), 3), False)
sketch16.addConstraint([
    Sketcher.Constraint("Diameter", 0, Q("6 mm")),
    Sketcher.Constraint("DistanceX", -1, 1, 0, 3, Q("34.000001 mm")),
    Sketcher.Constraint("DistanceY", -1, 1, 0, 3, Q("4.85 mm")),
])
sketch16.setExpression("Constraints[0]", "Params.sketch16_diameter")
pocket6 = doc.addObject("PartDesign::Pocket", "Pocket005")
body.addObject(pocket6)
pocket6.Profile = sketch16
pocket6.setExpression("Length", "Params.pocket6_length")
pocket6.Reversed = True

# Sketch on XY plane
sketch17 = doc.addObject("Sketcher::SketchObject", "Sketch016")
body.addObject(sketch17)
sketch17.AttachmentSupport = (doc.XY_Plane, [""])
sketch17.MapMode = "FlatFace"
sketch17.AttachmentOffset = App.Placement(App.Vector(0, 0, 55), App.Rotation())
sketch17.addGeometry([
    Part.LineSegment(App.Vector(15, 15, 0), App.Vector(15, 5, 0)),  # 0
    Part.LineSegment(App.Vector(15, 5, 0), App.Vector(40, 5, 0)),  # 1
    Part.LineSegment(App.Vector(40, 5, 0), App.Vector(40, 15, 0)),  # 2
    Part.LineSegment(App.Vector(40, 15, 0), App.Vector(15, 15, 0)),  # 3
    Part.Circle(App.Vector(27.5, 10, 0), App.Vector(0, 0, 1), 1.5),  # 4
    Part.LineSegment(App.Vector(15, -47, 0), App.Vector(15, -57, 0)),  # 5
    Part.LineSegment(App.Vector(15, -57, 0), App.Vector(40, -57, 0)),  # 6
    Part.LineSegment(App.Vector(40, -57, 0), App.Vector(40, -47, 0)),  # 7
    Part.LineSegment(App.Vector(40, -47, 0), App.Vector(15, -47, 0)),  # 8
    Part.Circle(App.Vector(27.5, -52, 0), App.Vector(0, 0, 1), 1.5),  # 9
    Part.LineSegment(App.Vector(112, 15, 0), App.Vector(112, 5, 0)),  # 10
    Part.LineSegment(App.Vector(112, 5, 0), App.Vector(162, 5, 0)),  # 11
    Part.LineSegment(App.Vector(162, 5, 0), App.Vector(162, 15, 0)),  # 12
    Part.LineSegment(App.Vector(162, 15, 0), App.Vector(112, 15, 0)),  # 13
    Part.Circle(App.Vector(124.5, 10, 0), App.Vector(0, 0, 1), 1.5),  # 14
    Part.Circle(App.Vector(149.5, 10, 0), App.Vector(0, 0, 1), 1.5),  # 15
    Part.LineSegment(App.Vector(112, -47, 0), App.Vector(112, -57, 0)),  # 16
    Part.LineSegment(App.Vector(112, -57, 0), App.Vector(162, -57, 0)),  # 17
    Part.LineSegment(App.Vector(162, -57, 0), App.Vector(162, -47, 0)),  # 18
    Part.LineSegment(App.Vector(162, -47, 0), App.Vector(112, -47, 0)),  # 19
    Part.Circle(App.Vector(124.5, -52, 0), App.Vector(0, 0, 1), 1.5),  # 20
    Part.Circle(App.Vector(149.5, -52, 0), App.Vector(0, 0, 1), 1.5),  # 21
], False)
sketch17.addConstraint([
    Sketcher.Constraint("Coincident", 0, 2, 1, 1),
    Sketcher.Constraint("Coincident", 1, 2, 2, 1),
    Sketcher.Constraint("Coincident", 2, 2, 3, 1),
    Sketcher.Constraint("Coincident", 3, 2, 0, 1),
    Sketcher.Constraint("Coincident", 5, 2, 6, 1),
    Sketcher.Constraint("Coincident", 6, 2, 7, 1),
    Sketcher.Constraint("Coincident", 7, 2, 8, 1),
    Sketcher.Constraint("Coincident", 8, 2, 5, 1),
    Sketcher.Constraint("Coincident", 10, 2, 11, 1),
    Sketcher.Constraint("Coincident", 11, 2, 12, 1),
    Sketcher.Constraint("Coincident", 12, 2, 13, 1),
    Sketcher.Constraint("Coincident", 13, 2, 10, 1),
    Sketcher.Constraint("Coincident", 16, 2, 17, 1),
    Sketcher.Constraint("Coincident", 17, 2, 18, 1),
    Sketcher.Constraint("Coincident", 18, 2, 19, 1),
    Sketcher.Constraint("Coincident", 19, 2, 16, 1),
    Sketcher.Constraint("Vertical", 0),
    Sketcher.Constraint("Horizontal", 1),
    Sketcher.Constraint("Vertical", 2),
    Sketcher.Constraint("Horizontal", 3),
    Sketcher.Constraint("Vertical", 5),
    Sketcher.Constraint("Horizontal", 6),
    Sketcher.Constraint("Vertical", 7),
    Sketcher.Constraint("Horizontal", 8),
    Sketcher.Constraint("Vertical", 10),
    Sketcher.Constraint("Horizontal", 11),
    Sketcher.Constraint("Vertical", 12),
    Sketcher.Constraint("Horizontal", 13),
    Sketcher.Constraint("Vertical", 16),
    Sketcher.Constraint("Horizontal", 17),
    Sketcher.Constraint("Vertical", 18),
    Sketcher.Constraint("Horizontal", 19),
    Sketcher.Constraint("Equal", 4, 9),
    Sketcher.Constraint("Equal", 9, 14),
    Sketcher.Constraint("Equal", 14, 15),
    Sketcher.Constraint("Equal", 15, 20),
    Sketcher.Constraint("Equal", 20, 21),
    Sketcher.Constraint("Horizontal", 4, 3, 14, 3),
    Sketcher.Constraint("Horizontal", 14, 3, 15, 3),
    Sketcher.Constraint("Horizontal", 9, 3, 20, 3),
    Sketcher.Constraint("Horizontal", 20, 3, 21, 3),
    Sketcher.Constraint("Horizontal", 1, 2, 10, 2),
    Sketcher.Constraint("Horizontal", 3, 2, 12, 2),
    Sketcher.Constraint("Horizontal", 6, 2, 16, 2),
    Sketcher.Constraint("Horizontal", 8, 2, 18, 2),
    Sketcher.Constraint("Vertical", 4, 3, 9, 3),
    Sketcher.Constraint("Vertical", 14, 3, 20, 3),
    Sketcher.Constraint("Vertical", 15, 3, 21, 3),
    Sketcher.Constraint("Vertical", 3, 2, 5, 2),
    Sketcher.Constraint("Vertical", 2, 2, 6, 2),
    Sketcher.Constraint("Vertical", 13, 2, 16, 2),
    Sketcher.Constraint("Vertical", 12, 2, 17, 2),
    Sketcher.Constraint("Equal", 2, 5),
    Sketcher.Constraint("Diameter", 4, Q("3 mm")),
    Sketcher.Constraint("DistanceX", 1, 1, 1, 2, Q("25 mm")),
    Sketcher.Constraint("DistanceX", 11, 1, 11, 2, Q("50 mm")),
    Sketcher.Constraint("DistanceY", 0, 2, 0, 1, Q("10 mm")),
    Sketcher.Constraint("DistanceY", -1, 1, 4, 3, Q("10 mm")),
    Sketcher.Constraint("DistanceY", 9, 3, -1, 1, Q("52 mm")),
    Sketcher.Constraint("DistanceX", -1, 1, 0, 2, Q("15 mm")),
    Sketcher.Constraint("DistanceY", -1, 1, 0, 2, Q("5 mm")),
    Sketcher.Constraint("DistanceY", 5, 2, -1, 1, Q("57 mm")),
    Sketcher.Constraint("DistanceX", -1, 1, 10, 2, Q("112 mm")),
    Sketcher.Constraint("DistanceX", 4, 3, 14, 3, Q("97 mm")),
    Sketcher.Constraint("DistanceX", 14, 3, 15, 3, Q("25 mm")),
    Sketcher.Constraint("DistanceX", -1, 1, 4, 3, Q("27.5 mm")),
])
sketch17.setExpression("Constraints[53]", "Params.sketch17_diameter")
sketch17.setExpression("Constraints[54]", "Params.sketch17_width")
sketch17.setExpression("Constraints[55]", "Params.sketch17_width2")
sketch17.setExpression("Constraints[56]", "Params.sketch17_height")
pad11 = doc.addObject("PartDesign::Pad", "Pad010")
body.addObject(pad11)
pad11.Profile = sketch17
pad11.setExpression("Length", "Params.pad11_length")
pad11.Reversed = True

# Sketch on XZ plane
sketch18 = doc.addObject("Sketcher::SketchObject", "Sketch017")
body.addObject(sketch18)
sketch18.AttachmentSupport = (doc.XZ_Plane, [""])
sketch18.MapMode = "FlatFace"
sketch18.AttachmentOffset = App.Placement(App.Vector(0, 0, 47), App.Rotation())
sketch18.addGeometry([
    Part.LineSegment(App.Vector(0, 6, 0), App.Vector(0, 15, 0)),  # 0
    Part.LineSegment(App.Vector(0, 15, 0), App.Vector(-130, 15, 0)),  # 1
    Part.LineSegment(App.Vector(-130, 15, 0), App.Vector(-156, 46, 0)),  # 2
    Part.ArcOfCircle(Part.Circle(App.Vector(-179, 66, 0), App.Vector(0, 0, 1), 30), math.radians(-139), math.radians(-41)),  # 3
    Part.LineSegment(App.Vector(-201, 46, 0), App.Vector(-150, -15, 0)),  # 4
    Part.LineSegment(App.Vector(-150, -15, 0), App.Vector(0, -15, 0)),  # 5
    Part.LineSegment(App.Vector(0, -15, 0), App.Vector(0, -6, 0)),  # 6
    Part.LineSegment(App.Vector(0, -6, 0), App.Vector(-6, -6, 0)),  # 7
    Part.LineSegment(App.Vector(-6, -6, 0), App.Vector(-6, 6, 0)),  # 8
    Part.LineSegment(App.Vector(-6, 6, 0), App.Vector(0, 6, 0)),  # 9
], False)
sketch18.addConstraint([
    Sketcher.Constraint("Coincident", 0, 2, 1, 1),
    Sketcher.Constraint("Coincident", 1, 2, 2, 1),
    Sketcher.Constraint("Coincident", 2, 2, 3, 2),
    Sketcher.Constraint("Coincident", 3, 1, 4, 1),
    Sketcher.Constraint("Coincident", 4, 2, 5, 1),
    Sketcher.Constraint("Coincident", 5, 2, 6, 1),
    Sketcher.Constraint("Coincident", 6, 2, 7, 1),
    Sketcher.Constraint("Coincident", 7, 2, 8, 1),
    Sketcher.Constraint("Coincident", 8, 2, 9, 1),
    Sketcher.Constraint("Coincident", 9, 2, 0, 1),
    Sketcher.Constraint("Vertical", 0),
    Sketcher.Constraint("Horizontal", 1),
    Sketcher.Constraint("Horizontal", 5),
    Sketcher.Constraint("Vertical", 6),
    Sketcher.Constraint("Horizontal", 7),
    Sketcher.Constraint("Vertical", 8),
    Sketcher.Constraint("Horizontal", 9),
    Sketcher.Constraint("Symmetric", 0, 2, 5, 2, -1, 1),
    Sketcher.Constraint("Symmetric", 6, 2, 9, 2, -1),
    Sketcher.Constraint("Parallel", 2, 4),
    Sketcher.Constraint("Horizontal", 2, 2, 3, 1),
    Sketcher.Constraint("Radius", 3, Q("30 mm")),
    Sketcher.Constraint("DistanceX", 1, 2, 1, 1, Q("130 mm")),
    Sketcher.Constraint("DistanceX", 5, 1, 5, 2, Q("150 mm")),
    Sketcher.Constraint("DistanceX", 7, 2, 7, 1, Q("6 mm")),
    Sketcher.Constraint("DistanceY", 0, 1, 0, 2, Q("9 mm")),
    Sketcher.Constraint("DistanceY", 8, 1, 8, 2, Q("12 mm")),
    Sketcher.Constraint("Angle", 2, Q("130 deg")),
    Sketcher.Constraint("Distance", 4, Q("80 mm")),
])
sketch18.setExpression("Constraints[21]", "Params.sketch18_radius")
sketch18.setExpression("Constraints[22]", "Params.sketch18_width")
sketch18.setExpression("Constraints[23]", "Params.sketch18_width2")
sketch18.setExpression("Constraints[24]", "Params.sketch18_width3")
sketch18.setExpression("Constraints[25]", "Params.sketch18_height")
pad12 = doc.addObject("PartDesign::Pad", "Pad011")
body.addObject(pad12)
pad12.Profile = sketch18
pad12.setExpression("Length", "Params.pad12_length")
pad12.Reversed = True
doc.recompute()

datumplane2 = doc.addObject("PartDesign::Plane", "DatumPlane001")
body.addObject(datumplane2)
datumplane2.AttachmentSupport = (doc.XZ_Plane, [""])
datumplane2.MapMode = "FlatFace"
datumplane2.AttachmentOffset = App.Placement(App.Vector(0, 0, 21), App.Rotation())
mirrored2 = doc.addObject("PartDesign::Mirrored", "Mirrored001")
body.addObject(mirrored2)
mirrored2.Originals = [pad12]
mirrored2.MirrorPlane = (datumplane2, [""])
body.Tip = mirrored2

# Sketch on XZ plane
sketch19 = doc.addObject("Sketcher::SketchObject", "Sketch018")
body.addObject(sketch19)
sketch19.AttachmentSupport = (doc.XZ_Plane, [""])
sketch19.MapMode = "FlatFace"
sketch19.AttachmentOffset = App.Placement(App.Vector(0, 0, -5), App.Rotation())
sketch19.addGeometry([
    Part.Circle(App.Vector(-179, 66, 0), App.Vector(0, 0, 1), 30),
    Part.Circle(App.Vector(-179, 66, 0), App.Vector(0, 0, 1), 25),
], False)
sketch19.addConstraint([
    Sketcher.Constraint("Coincident", 1, 3, 0, 3),
    Sketcher.Constraint("Diameter", 0, Q("60 mm")),
    Sketcher.Constraint("Diameter", 1, Q("50 mm")),
    Sketcher.Constraint("DistanceY", -1, 1, 0, 3, Q("66.028182 mm")),
    Sketcher.Constraint("DistanceX", 0, 3, -1, 1, Q("178.836514 mm")),
])
sketch19.setExpression("Constraints[1]", "Params.sketch19_diameter")
sketch19.setExpression("Constraints[2]", "Params.sketch19_diameter2")
pad13 = doc.addObject("PartDesign::Pad", "Pad012")
body.addObject(pad13)
pad13.Profile = sketch19
pad13.setExpression("Length", "Params.pad13_length")

# Sketch on XZ plane
sketch20 = doc.addObject("Sketcher::SketchObject", "Sketch019")
body.addObject(sketch20)
sketch20.AttachmentSupport = (doc.XZ_Plane, [""])
sketch20.MapMode = "FlatFace"
sketch20.AttachmentOffset = App.Placement(App.Vector(0, 0, -5), App.Rotation())
sketch20.addGeometry([
    Part.LineSegment(App.Vector(-160.6, 89.8, 0), App.Vector(-157.2, 93, 0)),  # 0
    Part.ArcOfCircle(Part.Circle(App.Vector(-153.2, 89.9, 0), App.Vector(0, 0, 1), 5), math.radians(-56), math.radians(142)),  # 1
    Part.LineSegment(App.Vector(-150.5, 85.7, 0), App.Vector(-153.8, 82.6, 0)),  # 2
    Part.ArcOfCircle(Part.Circle(App.Vector(-178.8, 66, 0), App.Vector(0, 0, 1), 30), math.radians(33.55), math.radians(52.48)),  # 3
    Part.Circle(App.Vector(-153.2, 89.9, 0), App.Vector(0, 0, 1), 1.5),  # 4
], False)
sketch20.addConstraint([
    Sketcher.Constraint("Coincident", 0, 2, 1, 2),
    Sketcher.Constraint("Coincident", 1, 1, 2, 1),
    Sketcher.Constraint("Coincident", 2, 2, 3, 1),
    Sketcher.Constraint("Coincident", 3, 2, 0, 1),
    Sketcher.Constraint("Coincident", 4, 3, 1, 3),
    Sketcher.Constraint("Parallel", 0, 2),
    Sketcher.Constraint("Equal", 0, 2),
    Sketcher.Constraint("Diameter", 4, Q("3 mm")),
    Sketcher.Constraint("Radius", 1, Q("5 mm")),
    Sketcher.Constraint("Radius", 3, Q("30 mm")),
    Sketcher.Constraint("DistanceY", 2, 2, 1, 1, Q("3.1328 mm")),
    Sketcher.Constraint("DistanceX", 1, 3, -1, 1, Q("153.246771 mm")),
    Sketcher.Constraint("DistanceY", -1, 1, 1, 3, Q("89.906311 mm")),
    Sketcher.Constraint("DistanceY", -1, 1, 3, 3, Q("66.028182 mm")),
    Sketcher.Constraint("DistanceY", -1, 1, 0, 2, Q("92.955991 mm")),
    Sketcher.Constraint("DistanceX", 2, 2, -1, 1, Q("153.835612 mm")),
])
sketch20.setExpression("Constraints[7]", "Params.sketch20_diameter")
sketch20.setExpression("Constraints[8]", "Params.sketch20_radius")
sketch20.setExpression("Constraints[9]", "Params.sketch20_radius2")
pad14 = doc.addObject("PartDesign::Pad", "Pad013")
body.addObject(pad14)
pad14.Profile = sketch20
pad14.setExpression("Length", "Params.pad14_length")
doc.recompute()

datumline = doc.addObject("PartDesign::Line", "DatumLine")
body.addObject(datumline)
datumline.Placement = App.Placement(App.Vector(-178.836514, 0, 66.028182), App.Rotation(App.Vector(0, 0, 1), App.Vector(0, -1, 0)))
polarpattern = doc.addObject("PartDesign::PolarPattern", "PolarPattern")
body.addObject(polarpattern)
polarpattern.Originals = [pad14]
polarpattern.Axis = (datumline, [""])
polarpattern.Angle = 180
polarpattern.Occurrences = 3
body.Tip = polarpattern

doc.recompute()
